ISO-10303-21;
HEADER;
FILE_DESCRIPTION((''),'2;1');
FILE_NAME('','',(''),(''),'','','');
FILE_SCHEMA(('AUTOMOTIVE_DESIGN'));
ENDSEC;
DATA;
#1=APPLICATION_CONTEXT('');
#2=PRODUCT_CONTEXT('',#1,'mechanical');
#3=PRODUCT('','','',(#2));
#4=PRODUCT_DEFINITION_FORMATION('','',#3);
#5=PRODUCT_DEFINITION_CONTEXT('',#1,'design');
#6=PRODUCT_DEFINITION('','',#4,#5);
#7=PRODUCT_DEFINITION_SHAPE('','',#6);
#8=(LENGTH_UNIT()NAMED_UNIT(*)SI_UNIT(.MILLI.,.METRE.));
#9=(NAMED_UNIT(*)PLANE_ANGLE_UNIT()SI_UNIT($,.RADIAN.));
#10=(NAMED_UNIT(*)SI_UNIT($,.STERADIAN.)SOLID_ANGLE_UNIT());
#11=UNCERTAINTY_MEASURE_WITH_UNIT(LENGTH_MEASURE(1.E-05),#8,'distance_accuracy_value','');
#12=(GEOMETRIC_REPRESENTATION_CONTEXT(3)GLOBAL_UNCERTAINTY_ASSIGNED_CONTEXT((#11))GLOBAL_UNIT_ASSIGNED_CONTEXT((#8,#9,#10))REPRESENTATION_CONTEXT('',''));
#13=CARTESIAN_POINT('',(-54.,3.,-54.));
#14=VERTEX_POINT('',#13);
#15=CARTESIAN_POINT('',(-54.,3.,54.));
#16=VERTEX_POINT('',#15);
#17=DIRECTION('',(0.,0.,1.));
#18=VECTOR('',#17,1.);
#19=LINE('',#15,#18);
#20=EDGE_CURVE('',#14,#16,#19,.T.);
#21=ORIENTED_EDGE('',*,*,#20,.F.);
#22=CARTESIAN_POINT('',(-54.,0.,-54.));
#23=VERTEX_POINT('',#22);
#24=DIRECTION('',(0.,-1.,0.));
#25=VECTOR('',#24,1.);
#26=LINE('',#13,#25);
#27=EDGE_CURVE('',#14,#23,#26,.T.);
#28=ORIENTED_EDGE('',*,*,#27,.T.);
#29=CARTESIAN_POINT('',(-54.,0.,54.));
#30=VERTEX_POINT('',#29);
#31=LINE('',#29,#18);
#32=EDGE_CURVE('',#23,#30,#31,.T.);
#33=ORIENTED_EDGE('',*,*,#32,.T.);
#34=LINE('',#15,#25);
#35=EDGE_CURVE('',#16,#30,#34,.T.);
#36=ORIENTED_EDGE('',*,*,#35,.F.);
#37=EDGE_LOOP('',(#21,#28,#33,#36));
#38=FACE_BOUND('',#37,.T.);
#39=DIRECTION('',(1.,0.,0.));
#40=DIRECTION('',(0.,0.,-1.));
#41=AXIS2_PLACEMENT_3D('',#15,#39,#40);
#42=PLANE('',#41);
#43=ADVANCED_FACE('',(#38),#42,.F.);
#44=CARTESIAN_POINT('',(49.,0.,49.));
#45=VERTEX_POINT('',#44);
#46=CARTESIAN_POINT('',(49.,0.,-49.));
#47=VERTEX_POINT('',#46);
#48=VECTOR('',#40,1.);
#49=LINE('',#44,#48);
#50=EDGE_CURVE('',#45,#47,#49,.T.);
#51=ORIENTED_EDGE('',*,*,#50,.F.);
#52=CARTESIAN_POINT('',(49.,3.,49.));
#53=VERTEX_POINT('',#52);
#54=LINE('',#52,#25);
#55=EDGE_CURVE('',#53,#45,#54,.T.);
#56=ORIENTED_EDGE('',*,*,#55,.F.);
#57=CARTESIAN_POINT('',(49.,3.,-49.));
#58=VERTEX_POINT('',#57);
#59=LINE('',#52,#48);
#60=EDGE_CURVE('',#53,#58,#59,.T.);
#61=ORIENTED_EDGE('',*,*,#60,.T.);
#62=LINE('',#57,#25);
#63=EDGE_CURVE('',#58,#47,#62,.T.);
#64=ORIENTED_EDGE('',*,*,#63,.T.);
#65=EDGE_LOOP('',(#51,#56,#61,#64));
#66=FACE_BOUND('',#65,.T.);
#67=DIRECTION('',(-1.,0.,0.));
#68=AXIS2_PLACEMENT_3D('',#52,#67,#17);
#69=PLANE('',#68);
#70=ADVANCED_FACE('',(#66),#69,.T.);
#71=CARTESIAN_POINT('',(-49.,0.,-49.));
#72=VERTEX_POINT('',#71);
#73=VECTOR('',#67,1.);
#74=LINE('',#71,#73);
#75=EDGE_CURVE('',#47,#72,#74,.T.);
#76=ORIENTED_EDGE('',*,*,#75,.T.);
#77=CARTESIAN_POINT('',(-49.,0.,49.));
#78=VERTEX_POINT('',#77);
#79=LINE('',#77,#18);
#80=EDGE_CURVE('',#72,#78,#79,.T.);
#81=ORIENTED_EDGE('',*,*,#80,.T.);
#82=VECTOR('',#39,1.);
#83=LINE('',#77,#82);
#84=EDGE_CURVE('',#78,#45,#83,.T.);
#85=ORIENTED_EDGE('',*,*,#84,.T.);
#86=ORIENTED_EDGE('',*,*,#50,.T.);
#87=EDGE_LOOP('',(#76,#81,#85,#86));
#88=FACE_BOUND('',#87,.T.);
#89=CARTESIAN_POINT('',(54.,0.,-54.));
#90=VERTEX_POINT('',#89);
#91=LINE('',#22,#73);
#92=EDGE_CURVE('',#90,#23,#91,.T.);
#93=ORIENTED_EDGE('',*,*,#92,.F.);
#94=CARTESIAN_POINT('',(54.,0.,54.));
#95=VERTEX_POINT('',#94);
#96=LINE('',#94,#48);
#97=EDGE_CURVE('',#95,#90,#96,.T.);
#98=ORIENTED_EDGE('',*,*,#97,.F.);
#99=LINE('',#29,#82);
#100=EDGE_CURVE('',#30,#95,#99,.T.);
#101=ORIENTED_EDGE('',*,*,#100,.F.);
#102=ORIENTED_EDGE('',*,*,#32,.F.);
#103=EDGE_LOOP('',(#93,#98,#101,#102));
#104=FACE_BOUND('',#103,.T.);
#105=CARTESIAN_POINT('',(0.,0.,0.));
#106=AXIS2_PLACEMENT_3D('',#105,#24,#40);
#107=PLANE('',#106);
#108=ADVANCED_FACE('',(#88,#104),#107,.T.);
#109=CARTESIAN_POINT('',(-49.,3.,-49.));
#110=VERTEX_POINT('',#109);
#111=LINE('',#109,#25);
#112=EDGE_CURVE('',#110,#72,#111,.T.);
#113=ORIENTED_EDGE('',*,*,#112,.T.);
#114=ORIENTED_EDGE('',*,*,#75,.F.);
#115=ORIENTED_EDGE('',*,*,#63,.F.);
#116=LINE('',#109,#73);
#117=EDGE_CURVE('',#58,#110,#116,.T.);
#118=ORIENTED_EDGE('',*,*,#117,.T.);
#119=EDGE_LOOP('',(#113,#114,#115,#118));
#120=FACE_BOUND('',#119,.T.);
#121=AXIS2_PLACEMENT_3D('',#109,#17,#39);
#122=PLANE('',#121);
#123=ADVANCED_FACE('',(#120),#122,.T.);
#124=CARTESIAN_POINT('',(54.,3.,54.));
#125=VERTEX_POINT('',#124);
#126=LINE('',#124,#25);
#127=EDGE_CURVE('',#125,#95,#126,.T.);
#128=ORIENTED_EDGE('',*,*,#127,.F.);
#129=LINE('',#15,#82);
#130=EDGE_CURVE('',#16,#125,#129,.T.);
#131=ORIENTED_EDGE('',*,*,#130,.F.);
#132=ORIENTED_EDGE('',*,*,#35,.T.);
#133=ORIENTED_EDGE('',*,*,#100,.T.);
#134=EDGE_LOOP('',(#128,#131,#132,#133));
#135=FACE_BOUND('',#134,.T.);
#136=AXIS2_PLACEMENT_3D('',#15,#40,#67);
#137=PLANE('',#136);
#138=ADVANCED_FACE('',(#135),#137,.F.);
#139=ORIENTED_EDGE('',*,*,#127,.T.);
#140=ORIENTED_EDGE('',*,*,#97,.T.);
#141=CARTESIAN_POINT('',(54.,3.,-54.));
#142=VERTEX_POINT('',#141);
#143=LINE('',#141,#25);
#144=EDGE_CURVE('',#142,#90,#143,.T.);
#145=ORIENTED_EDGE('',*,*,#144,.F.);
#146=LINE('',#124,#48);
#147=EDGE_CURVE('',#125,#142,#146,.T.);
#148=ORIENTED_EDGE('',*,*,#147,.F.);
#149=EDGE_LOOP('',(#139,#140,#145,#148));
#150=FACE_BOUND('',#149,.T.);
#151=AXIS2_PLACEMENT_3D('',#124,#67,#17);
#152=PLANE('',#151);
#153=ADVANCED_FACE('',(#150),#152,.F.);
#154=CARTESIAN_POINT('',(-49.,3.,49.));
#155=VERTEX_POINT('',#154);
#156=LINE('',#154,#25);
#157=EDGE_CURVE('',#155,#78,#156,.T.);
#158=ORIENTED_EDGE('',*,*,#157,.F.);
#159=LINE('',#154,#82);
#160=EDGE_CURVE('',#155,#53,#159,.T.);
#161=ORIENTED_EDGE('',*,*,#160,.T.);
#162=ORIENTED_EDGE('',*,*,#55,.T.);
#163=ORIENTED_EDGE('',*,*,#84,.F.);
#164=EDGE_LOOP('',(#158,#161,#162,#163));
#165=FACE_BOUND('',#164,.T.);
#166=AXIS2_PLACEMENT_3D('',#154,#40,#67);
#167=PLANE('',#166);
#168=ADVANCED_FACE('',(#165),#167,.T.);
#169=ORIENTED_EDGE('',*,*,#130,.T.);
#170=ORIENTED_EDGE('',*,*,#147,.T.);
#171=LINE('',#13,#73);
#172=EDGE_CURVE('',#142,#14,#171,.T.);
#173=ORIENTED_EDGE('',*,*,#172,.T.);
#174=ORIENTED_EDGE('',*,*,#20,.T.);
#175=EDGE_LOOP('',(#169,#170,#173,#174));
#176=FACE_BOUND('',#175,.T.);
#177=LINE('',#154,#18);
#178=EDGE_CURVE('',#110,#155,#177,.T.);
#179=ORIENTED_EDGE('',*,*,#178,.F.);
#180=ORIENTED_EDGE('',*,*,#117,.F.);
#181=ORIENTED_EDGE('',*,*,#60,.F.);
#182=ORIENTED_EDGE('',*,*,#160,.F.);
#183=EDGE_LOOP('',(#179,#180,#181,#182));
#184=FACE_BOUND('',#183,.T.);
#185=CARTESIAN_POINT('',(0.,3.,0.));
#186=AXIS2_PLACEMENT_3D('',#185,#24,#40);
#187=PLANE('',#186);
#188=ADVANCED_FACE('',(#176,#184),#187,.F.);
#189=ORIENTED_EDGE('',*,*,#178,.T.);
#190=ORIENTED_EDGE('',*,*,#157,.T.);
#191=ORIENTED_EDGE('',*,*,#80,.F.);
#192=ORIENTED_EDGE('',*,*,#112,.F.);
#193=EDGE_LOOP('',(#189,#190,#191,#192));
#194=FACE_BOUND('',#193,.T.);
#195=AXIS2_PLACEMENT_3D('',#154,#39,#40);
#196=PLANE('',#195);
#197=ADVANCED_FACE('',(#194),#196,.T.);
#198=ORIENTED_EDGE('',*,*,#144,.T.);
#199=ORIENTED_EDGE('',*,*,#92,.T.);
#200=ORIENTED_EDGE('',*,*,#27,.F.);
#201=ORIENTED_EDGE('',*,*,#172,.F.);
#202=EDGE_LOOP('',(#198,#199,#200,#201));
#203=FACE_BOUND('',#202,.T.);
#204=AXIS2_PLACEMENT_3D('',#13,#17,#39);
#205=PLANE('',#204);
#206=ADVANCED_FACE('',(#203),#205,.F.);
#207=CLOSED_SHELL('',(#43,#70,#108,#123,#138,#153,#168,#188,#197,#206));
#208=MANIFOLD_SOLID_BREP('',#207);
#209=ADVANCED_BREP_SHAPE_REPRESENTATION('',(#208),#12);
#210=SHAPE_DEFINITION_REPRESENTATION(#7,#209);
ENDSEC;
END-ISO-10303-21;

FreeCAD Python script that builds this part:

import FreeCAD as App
import Part
import Sketcher

doc = App.newDocument("Part")
body = doc.addObject("PartDesign::Body", "Body")

sketch1 = body.newObject("Sketcher::SketchObject", "Sketch")
sketch1.AttachmentSupport = (doc.getObject("XZ_Plane"), [""])
sketch1.MapMode = "FlatFace"
sketch1.addGeometry(Part.LineSegment(App.Vector(-54, -54, 0), App.Vector(-54, 54, 0)), False)
sketch1.addGeometry(Part.LineSegment(App.Vector(-54, 54, 0), App.Vector(54, 54, 0)), False)
sketch1.addGeometry(Part.LineSegment(App.Vector(54, 54, 0), App.Vector(54, -54, 0)), False)
sketch1.addGeometry(Part.LineSegment(App.Vector(54, -54, 0), App.Vector(-54, -54, 0)), False)
sketch1.addGeometry(Part.LineSegment(App.Vector(49, 49, 0), App.Vector(-49, 49, 0)), False)
sketch1.addGeometry(Part.LineSegment(App.Vector(-49, 49, 0), App.Vector(-49, -49, 0)), False)
sketch1.addGeometry(Part.LineSegment(App.Vector(-49, -49, 0), App.Vector(49, -49, 0)), False)
sketch1.addGeometry(Part.LineSegment(App.Vector(49, -49, 0), App.Vector(49, 49, 0)), False)
sketch1.addConstraint(Sketcher.Constraint("Coincident", 0, 2, 1, 1))
sketch1.addConstraint(Sketcher.Constraint("Coincident", 1, 2, 2, 1))
sketch1.addConstraint(Sketcher.Constraint("Coincident", 2, 2, 3, 1))
sketch1.addConstraint(Sketcher.Constraint("Coincident", 3, 2, 0, 1))
sketch1.addConstraint(Sketcher.Constraint("Coincident", 4, 2, 5, 1))
sketch1.addConstraint(Sketcher.Constraint("Coincident", 5, 2, 6, 1))
sketch1.addConstraint(Sketcher.Constraint("Coincident", 6, 2, 7, 1))
sketch1.addConstraint(Sketcher.Constraint("Coincident", 7, 2, 4, 1))
sketch1.addConstraint(Sketcher.Constraint("Vertical", 0))
sketch1.addConstraint(Sketcher.Constraint("Horizontal", 1))
sketch1.addConstraint(Sketcher.Constraint("Vertical", 2))
sketch1.addConstraint(Sketcher.Constraint("Horizontal", 3))
sketch1.addConstraint(Sketcher.Constraint("Horizontal", 4))
sketch1.addConstraint(Sketcher.Constraint("Vertical", 5))
sketch1.addConstraint(Sketcher.Constraint("Horizontal", 6))
sketch1.addConstraint(Sketcher.Constraint("Vertical", 7))
sketch1.addConstraint(Sketcher.Constraint("Symmetric", 0, 2, 2, 2, -1, 1))
sketch1.addConstraint(Sketcher.Constraint("Symmetric", 4, 2, 6, 2, -1, 1))
sketch1.addConstraint(Sketcher.Constraint("Equal", 3, 0))
sketch1.addConstraint(Sketcher.Constraint("Equal", 6, 5))
sketch1.addConstraint(Sketcher.Constraint("DistanceX", 1, 1, 1, 2, 108.0))
sketch1.addConstraint(Sketcher.Constraint("DistanceX", 4, 2, 4, 1, 98.0))
pad1 = body.newObject("PartDesign::Pad", "Pad")
pad1.Profile = sketch1
pad1.Length = 3
pad1.Reversed = True

doc.recompute()
